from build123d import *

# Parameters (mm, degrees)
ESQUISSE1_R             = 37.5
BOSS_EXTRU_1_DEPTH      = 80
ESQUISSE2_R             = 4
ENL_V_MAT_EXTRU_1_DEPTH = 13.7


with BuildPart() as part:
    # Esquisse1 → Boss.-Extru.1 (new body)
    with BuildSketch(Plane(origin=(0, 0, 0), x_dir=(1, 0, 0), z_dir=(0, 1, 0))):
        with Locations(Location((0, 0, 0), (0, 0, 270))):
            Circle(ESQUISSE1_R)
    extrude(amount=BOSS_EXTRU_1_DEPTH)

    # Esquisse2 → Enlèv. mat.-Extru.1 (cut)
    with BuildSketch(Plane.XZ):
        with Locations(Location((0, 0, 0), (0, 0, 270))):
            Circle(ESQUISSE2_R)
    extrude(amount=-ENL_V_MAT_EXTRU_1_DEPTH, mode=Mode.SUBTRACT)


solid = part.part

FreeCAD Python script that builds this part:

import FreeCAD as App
import Part
import Sketcher
Q = App.Units.Quantity

doc = App.newDocument("Part")
body = doc.addObject("PartDesign::Body", "Body")

# Sketch on XZ plane
sketch1 = body.newObject("Sketcher::SketchObject", "Sketch")
sketch1.AttachmentSupport = (doc.getObject("XZ_Plane"), [""])
sketch1.MapMode = "FlatFace"
sketch1.addGeometry(Part.Circle(App.Vector(0, 0, 0), App.Vector(0, 0, 1), 38), False)
sketch1.addConstraint(Sketcher.Constraint("Coincident", 0, 3, -1, 1))
sketch1.addConstraint(Sketcher.Constraint("Diameter", 0, Q("75 mm")))
pad1 = body.newObject("PartDesign::Pad", "Pad")
pad1.Profile = sketch1
pad1.Length = 80
pad1.Reversed = True

# Sketch on XZ plane
sketch2 = body.newObject("Sketcher::SketchObject", "Sketch001")
sketch2.AttachmentSupport = (doc.getObject("XZ_Plane"), [""])
sketch2.MapMode = "FlatFace"
sketch2.addGeometry(Part.Circle(App.Vector(0, 0, 0), App.Vector(0, 0, 1), 4), False)
sketch2.addConstraint(Sketcher.Constraint("Coincident", 0, 3, -1, 1))
sketch2.addConstraint(Sketcher.Constraint("Diameter", 0, Q("8 mm")))
pocket1 = body.newObject("PartDesign::Pocket", "Pocket")
pocket1.Profile = sketch2
pocket1.Length = 13.7

doc.recompute()
